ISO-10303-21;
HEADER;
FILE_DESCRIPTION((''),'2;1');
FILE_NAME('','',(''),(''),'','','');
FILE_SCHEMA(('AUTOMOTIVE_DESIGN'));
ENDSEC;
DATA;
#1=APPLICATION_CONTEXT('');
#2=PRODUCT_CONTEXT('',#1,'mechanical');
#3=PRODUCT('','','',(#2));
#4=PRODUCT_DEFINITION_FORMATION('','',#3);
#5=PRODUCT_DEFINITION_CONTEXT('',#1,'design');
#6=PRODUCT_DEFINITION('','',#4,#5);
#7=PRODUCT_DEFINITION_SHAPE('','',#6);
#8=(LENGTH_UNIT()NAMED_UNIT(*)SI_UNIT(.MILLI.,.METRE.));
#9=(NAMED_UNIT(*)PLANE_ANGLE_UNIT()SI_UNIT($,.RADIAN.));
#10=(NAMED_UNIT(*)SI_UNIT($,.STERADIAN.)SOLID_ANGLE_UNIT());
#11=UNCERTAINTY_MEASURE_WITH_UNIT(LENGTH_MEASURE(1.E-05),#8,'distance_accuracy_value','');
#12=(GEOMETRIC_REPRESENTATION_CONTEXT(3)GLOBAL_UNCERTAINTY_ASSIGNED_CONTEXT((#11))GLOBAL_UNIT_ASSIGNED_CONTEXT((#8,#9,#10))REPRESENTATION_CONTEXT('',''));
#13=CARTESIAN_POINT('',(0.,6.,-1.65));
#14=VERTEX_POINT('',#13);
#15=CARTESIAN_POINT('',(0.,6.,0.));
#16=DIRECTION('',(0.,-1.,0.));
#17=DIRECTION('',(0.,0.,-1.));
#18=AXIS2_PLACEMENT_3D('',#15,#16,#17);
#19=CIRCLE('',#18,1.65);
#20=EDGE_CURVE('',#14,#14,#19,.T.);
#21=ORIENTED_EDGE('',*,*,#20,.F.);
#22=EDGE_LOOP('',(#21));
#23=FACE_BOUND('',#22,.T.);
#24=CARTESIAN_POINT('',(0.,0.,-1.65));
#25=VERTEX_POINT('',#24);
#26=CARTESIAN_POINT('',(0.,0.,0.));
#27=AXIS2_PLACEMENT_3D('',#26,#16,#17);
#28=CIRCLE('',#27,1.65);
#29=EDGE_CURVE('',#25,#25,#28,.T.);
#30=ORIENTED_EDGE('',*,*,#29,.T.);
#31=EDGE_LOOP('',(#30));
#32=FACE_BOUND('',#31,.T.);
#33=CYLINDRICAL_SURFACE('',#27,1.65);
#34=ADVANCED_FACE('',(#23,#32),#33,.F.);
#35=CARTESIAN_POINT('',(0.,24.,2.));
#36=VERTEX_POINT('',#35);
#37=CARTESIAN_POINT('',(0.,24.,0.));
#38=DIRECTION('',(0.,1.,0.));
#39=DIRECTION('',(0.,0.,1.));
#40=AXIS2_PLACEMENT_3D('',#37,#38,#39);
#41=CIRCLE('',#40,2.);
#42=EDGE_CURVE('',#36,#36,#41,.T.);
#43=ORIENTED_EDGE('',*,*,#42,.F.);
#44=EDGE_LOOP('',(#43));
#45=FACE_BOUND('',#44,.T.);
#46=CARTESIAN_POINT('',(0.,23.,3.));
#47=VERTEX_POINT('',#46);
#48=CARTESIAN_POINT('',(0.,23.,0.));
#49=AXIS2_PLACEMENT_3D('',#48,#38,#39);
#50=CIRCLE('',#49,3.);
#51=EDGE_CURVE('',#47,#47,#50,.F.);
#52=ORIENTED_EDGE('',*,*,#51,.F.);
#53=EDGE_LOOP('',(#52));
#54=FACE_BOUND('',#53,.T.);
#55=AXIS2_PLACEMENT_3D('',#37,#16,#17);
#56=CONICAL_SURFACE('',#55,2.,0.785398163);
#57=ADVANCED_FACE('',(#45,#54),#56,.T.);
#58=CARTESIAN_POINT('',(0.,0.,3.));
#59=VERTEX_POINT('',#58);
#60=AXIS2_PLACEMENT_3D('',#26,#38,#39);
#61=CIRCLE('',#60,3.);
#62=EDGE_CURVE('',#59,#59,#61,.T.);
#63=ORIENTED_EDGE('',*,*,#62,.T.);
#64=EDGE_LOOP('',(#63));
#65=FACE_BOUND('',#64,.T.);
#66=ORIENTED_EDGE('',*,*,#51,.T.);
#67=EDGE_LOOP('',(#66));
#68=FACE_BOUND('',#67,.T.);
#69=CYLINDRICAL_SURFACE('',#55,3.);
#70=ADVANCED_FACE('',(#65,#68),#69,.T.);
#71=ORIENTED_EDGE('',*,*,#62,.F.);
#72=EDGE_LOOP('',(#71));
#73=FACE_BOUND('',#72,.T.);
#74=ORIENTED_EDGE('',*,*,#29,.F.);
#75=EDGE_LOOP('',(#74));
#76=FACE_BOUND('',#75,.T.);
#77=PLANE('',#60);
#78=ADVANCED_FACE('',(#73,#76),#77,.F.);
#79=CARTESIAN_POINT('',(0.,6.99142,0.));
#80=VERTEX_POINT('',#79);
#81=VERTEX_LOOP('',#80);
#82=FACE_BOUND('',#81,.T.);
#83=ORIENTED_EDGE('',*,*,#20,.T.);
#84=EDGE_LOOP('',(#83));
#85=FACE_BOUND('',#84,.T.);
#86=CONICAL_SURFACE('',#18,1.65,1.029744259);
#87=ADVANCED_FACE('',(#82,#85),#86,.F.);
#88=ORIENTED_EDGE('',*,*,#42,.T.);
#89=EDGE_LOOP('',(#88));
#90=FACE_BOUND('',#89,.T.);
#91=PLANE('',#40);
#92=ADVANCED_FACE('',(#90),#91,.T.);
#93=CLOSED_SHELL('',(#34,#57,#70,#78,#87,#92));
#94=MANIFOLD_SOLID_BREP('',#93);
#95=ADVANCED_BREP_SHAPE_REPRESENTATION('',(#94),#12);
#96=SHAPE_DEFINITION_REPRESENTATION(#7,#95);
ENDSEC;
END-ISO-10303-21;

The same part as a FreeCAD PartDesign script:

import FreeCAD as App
import Part
import Sketcher
Q = App.Units.Quantity


def edges_at(feature, points):
    """Names of the edges that pass closest to the given points."""
    edges = feature.Shape.Edges
    near = lambda p: min(range(len(edges)), key=lambda i: edges[i].distToShape(Part.Vertex(*p))[0])
    return sorted({f"Edge{near(p) + 1}" for p in points})

doc = App.newDocument("Part")
body = doc.addObject("PartDesign::Body", "Body")

# Sketch on XZ plane
sketch1 = body.newObject("Sketcher::SketchObject", "Sketch")
sketch1.AttachmentSupport = (doc.getObject("XZ_Plane"), [""])
sketch1.MapMode = "FlatFace"
sketch1.addGeometry(Part.Circle(App.Vector(0, 0, 0), App.Vector(0, 0, 1), 3), False)
sketch1.addConstraint([
    Sketcher.Constraint("Coincident", 0, 3, -1, 1),
    Sketcher.Constraint("Diameter", 0, Q("6 mm")),
])
pad1 = body.newObject("PartDesign::Pad", "Pad")
pad1.Profile = sketch1
pad1.Length = 24
pad1.Reversed = True
doc.recompute()

chamfer = body.newObject("PartDesign::Chamfer", "Chamfer")
chamfer.Base = (pad1, edges_at(pad1, [(0, 24, -3)]))
chamfer.Size = 1

# Sketch on XZ plane
sketch2 = body.newObject("Sketcher::SketchObject", "Sketch001")
sketch2.AttachmentSupport = (doc.getObject("XZ_Plane"), [""])
sketch2.MapMode = "FlatFace"
sketch2.addGeometry(Part.Circle(App.Vector(0, 0, 0), App.Vector(0, 0, 1), 1.6), False)
sketch2.addConstraint([
    Sketcher.Constraint("Coincident", 0, 3, -1, 1),
    Sketcher.Constraint("Diameter", 0, Q("3.3 mm")),
])
doc.recompute()
hole = body.newObject("PartDesign::Hole", "Hole")
hole.Profile = sketch2
hole.ThreadType = "None"
hole.Diameter = 3.3
hole.DepthType = "Dimension"
hole.Depth = 6
hole.DrillPoint = "Angled"
hole.DrillPointAngle = 118

doc.recompute()
